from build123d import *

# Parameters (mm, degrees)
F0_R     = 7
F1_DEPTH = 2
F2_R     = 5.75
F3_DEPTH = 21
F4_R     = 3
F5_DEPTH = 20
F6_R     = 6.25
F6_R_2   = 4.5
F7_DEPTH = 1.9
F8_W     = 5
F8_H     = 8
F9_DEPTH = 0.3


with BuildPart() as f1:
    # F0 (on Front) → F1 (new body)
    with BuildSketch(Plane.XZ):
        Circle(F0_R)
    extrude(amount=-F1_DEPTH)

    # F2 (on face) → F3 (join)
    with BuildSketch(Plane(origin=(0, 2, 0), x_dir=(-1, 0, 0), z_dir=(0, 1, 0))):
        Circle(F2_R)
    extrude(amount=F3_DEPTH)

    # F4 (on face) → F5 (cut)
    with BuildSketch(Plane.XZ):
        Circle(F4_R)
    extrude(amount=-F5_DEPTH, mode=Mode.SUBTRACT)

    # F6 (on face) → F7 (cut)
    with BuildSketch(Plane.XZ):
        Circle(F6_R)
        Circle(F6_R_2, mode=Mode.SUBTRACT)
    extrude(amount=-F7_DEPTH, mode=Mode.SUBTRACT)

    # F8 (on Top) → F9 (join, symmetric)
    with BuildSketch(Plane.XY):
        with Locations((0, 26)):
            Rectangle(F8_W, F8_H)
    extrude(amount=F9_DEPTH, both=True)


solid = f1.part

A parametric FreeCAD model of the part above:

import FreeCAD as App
import Part
import Sketcher
from FreeCAD import Vector

doc = App.newDocument("Part")
body = doc.addObject("PartDesign::Body", "Body")

# Sketch on XZ plane
sketch1 = body.newObject("Sketcher::SketchObject", "Sketch")
sketch1.AttachmentSupport = (doc.getObject("XZ_Plane"), [""])
sketch1.MapMode = "FlatFace"
sketch1.addGeometry(Part.Circle(Vector(0, 0, 0), Vector(0, 0, 1), 7), False)
sketch1.addConstraint(Sketcher.Constraint("Coincident", 0, 3, -1, 1))
sketch1.addConstraint(Sketcher.Constraint("Diameter", 0, 14.0))
pad1 = body.newObject("PartDesign::Pad", "Pad")
pad1.Profile = sketch1
pad1.Length = 2
pad1.Reversed = True

# Sketch on XZ plane
sketch2 = body.newObject("Sketcher::SketchObject", "Sketch001")
sketch2.AttachmentSupport = (doc.getObject("XZ_Plane"), [""])
sketch2.MapMode = "FlatFace"
sketch2.AttachmentOffset = App.Placement(Vector(0, 0, -2), App.Rotation())
sketch2.addGeometry(Part.Circle(Vector(0, 0, 0), Vector(0, 0, 1), 6), False)
sketch2.addConstraint(Sketcher.Constraint("Coincident", 0, 3, -1, 1))
sketch2.addConstraint(Sketcher.Constraint("Diameter", 0, 11.5))
pad2 = body.newObject("PartDesign::Pad", "Pad001")
pad2.Profile = sketch2
pad2.Length = 21
pad2.Reversed = True

# Sketch on XZ plane
sketch3 = body.newObject("Sketcher::SketchObject", "Sketch002")
sketch3.AttachmentSupport = (doc.getObject("XZ_Plane"), [""])
sketch3.MapMode = "FlatFace"
sketch3.addGeometry(Part.Circle(Vector(0, 0, 0), Vector(0, 0, 1), 3), False)
sketch3.addConstraint(Sketcher.Constraint("Coincident", 0, 3, -1, 1))
sketch3.addConstraint(Sketcher.Constraint("Diameter", 0, 6.0))
pocket1 = body.newObject("PartDesign::Pocket", "Pocket")
pocket1.Profile = sketch3
pocket1.Length = 20

# Sketch on XZ plane
sketch4 = body.newObject("Sketcher::SketchObject", "Sketch003")
sketch4.AttachmentSupport = (doc.getObject("XZ_Plane"), [""])
sketch4.MapMode = "FlatFace"
sketch4.addGeometry(Part.Circle(Vector(0, 0, 0), Vector(0, 0, 1), 6.2), False)
sketch4.addGeometry(Part.Circle(Vector(0, 0, 0), Vector(0, 0, 1), 4.5), False)
sketch4.addConstraint(Sketcher.Constraint("Coincident", 0, 3, -1, 1))
sketch4.addConstraint(Sketcher.Constraint("Coincident", 1, 3, -1, 1))
sketch4.addConstraint(Sketcher.Constraint("Diameter", 1, 9.0))
sketch4.addConstraint(Sketcher.Constraint("Diameter", 0, 12.5))
pocket2 = body.newObject("PartDesign::Pocket", "Pocket001")
pocket2.Profile = sketch4
pocket2.Length = 1.9

# Sketch on XY plane
sketch5 = body.newObject("Sketcher::SketchObject", "Sketch004")
sketch5.AttachmentSupport = (doc.getObject("XY_Plane"), [""])
sketch5.MapMode = "FlatFace"
sketch5.addGeometry(Part.LineSegment(Vector(-2, 30, 0), Vector(-2, 22, 0)), False)
sketch5.addGeometry(Part.LineSegment(Vector(-2, 22, 0), Vector(2, 22, 0)), False)
sketch5.addGeometry(Part.LineSegment(Vector(2, 22, 0), Vector(2, 30, 0)), False)
sketch5.addGeometry(Part.LineSegment(Vector(2, 30, 0), Vector(-2, 30, 0)), False)
sketch5.addConstraint(Sketcher.Constraint("Coincident", 0, 2, 1, 1))
sketch5.addConstraint(Sketcher.Constraint("Coincident", 1, 2, 2, 1))
sketch5.addConstraint(Sketcher.Constraint("Coincident", 2, 2, 3, 1))
sketch5.addConstraint(Sketcher.Constraint("Coincident", 3, 2, 0, 1))
sketch5.addConstraint(Sketcher.Constraint("Vertical", 0))
sketch5.addConstraint(Sketcher.Constraint("Horizontal", 1))
sketch5.addConstraint(Sketcher.Constraint("Vertical", 2))
sketch5.addConstraint(Sketcher.Constraint("Horizontal", 3))
sketch5.addConstraint(Sketcher.Constraint("DistanceX", 1, 1, 1, 2, 5.0))
sketch5.addConstraint(Sketcher.Constraint("DistanceY", 0, 2, 0, 1, 8.0))
sketch5.addConstraint(Sketcher.Constraint("DistanceY", -1, 1, 0, 2, 22.0))
sketch5.addConstraint(Sketcher.Constraint("DistanceX", 0, 2, -1, 1, 2.5))
pad3 = body.newObject("PartDesign::Pad", "Pad002")
pad3.Profile = sketch5
pad3.Length = 0.6
pad3.Midplane = True

doc.recompute()
